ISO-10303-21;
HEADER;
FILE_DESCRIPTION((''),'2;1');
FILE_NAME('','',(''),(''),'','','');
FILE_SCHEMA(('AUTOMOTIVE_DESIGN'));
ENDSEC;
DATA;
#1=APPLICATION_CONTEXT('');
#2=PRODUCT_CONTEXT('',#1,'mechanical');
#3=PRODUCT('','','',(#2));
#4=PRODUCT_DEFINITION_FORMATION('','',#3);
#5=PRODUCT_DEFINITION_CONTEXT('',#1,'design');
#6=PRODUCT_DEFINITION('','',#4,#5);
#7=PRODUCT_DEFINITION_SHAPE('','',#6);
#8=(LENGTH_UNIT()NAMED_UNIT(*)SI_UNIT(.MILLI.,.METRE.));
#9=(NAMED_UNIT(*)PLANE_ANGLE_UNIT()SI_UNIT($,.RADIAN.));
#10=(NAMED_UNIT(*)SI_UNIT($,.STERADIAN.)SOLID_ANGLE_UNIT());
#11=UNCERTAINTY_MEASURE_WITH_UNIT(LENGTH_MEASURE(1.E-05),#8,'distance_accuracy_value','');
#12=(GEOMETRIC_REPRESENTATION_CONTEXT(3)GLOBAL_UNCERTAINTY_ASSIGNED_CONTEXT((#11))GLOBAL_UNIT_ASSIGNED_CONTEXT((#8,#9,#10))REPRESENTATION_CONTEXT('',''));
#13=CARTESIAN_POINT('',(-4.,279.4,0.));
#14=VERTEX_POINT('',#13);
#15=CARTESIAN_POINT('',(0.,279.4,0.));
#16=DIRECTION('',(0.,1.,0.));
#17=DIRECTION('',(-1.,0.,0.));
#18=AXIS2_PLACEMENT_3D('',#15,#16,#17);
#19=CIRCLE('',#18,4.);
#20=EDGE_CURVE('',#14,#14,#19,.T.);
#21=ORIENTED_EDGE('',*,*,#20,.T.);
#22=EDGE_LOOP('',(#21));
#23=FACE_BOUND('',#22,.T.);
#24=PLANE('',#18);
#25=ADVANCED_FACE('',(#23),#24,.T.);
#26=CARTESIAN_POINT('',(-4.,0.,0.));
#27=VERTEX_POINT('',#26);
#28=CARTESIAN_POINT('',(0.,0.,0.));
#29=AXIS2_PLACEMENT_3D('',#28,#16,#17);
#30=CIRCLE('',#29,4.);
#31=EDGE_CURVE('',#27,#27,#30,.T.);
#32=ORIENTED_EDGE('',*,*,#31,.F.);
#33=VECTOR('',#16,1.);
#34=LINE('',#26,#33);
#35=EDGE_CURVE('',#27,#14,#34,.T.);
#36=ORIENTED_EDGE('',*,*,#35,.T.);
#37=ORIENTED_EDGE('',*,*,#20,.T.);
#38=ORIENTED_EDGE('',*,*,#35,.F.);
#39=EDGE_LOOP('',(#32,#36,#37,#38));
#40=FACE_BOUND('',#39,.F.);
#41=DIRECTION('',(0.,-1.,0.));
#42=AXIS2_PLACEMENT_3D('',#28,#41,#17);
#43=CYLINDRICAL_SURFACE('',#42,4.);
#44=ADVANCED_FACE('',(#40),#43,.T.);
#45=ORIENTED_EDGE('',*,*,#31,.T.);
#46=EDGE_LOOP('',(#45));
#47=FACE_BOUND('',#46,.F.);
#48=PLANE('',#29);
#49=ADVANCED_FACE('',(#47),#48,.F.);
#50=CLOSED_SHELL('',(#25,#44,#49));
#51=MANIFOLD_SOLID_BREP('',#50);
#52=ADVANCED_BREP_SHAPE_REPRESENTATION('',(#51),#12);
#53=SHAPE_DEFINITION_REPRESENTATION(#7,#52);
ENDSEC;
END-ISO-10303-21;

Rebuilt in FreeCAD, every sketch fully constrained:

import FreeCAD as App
import Part
import Sketcher

V = App.Vector
Q = App.Units.Quantity

doc = App.newDocument("Part")
body = doc.addObject("PartDesign::Body", "Body")

# Sketch on XZ plane
sketch1 = body.newObject("Sketcher::SketchObject", "Sketch")
sketch1.AttachmentSupport = (doc.getObject("XZ_Plane"), [""])
sketch1.MapMode = "FlatFace"
sketch1.addGeometry(Part.Circle(V(0, 0, 0), V(0, 0, 1), 4), False)
sketch1.addConstraint(Sketcher.Constraint("Coincident", 0, 3, -1, 1))
sketch1.addConstraint(Sketcher.Constraint("Diameter", 0, Q("8 mm")))
pad1 = body.newObject("PartDesign::Pad", "Pad")
pad1.Profile = sketch1
pad1.Length = 279.4
pad1.Reversed = True

doc.recompute()
